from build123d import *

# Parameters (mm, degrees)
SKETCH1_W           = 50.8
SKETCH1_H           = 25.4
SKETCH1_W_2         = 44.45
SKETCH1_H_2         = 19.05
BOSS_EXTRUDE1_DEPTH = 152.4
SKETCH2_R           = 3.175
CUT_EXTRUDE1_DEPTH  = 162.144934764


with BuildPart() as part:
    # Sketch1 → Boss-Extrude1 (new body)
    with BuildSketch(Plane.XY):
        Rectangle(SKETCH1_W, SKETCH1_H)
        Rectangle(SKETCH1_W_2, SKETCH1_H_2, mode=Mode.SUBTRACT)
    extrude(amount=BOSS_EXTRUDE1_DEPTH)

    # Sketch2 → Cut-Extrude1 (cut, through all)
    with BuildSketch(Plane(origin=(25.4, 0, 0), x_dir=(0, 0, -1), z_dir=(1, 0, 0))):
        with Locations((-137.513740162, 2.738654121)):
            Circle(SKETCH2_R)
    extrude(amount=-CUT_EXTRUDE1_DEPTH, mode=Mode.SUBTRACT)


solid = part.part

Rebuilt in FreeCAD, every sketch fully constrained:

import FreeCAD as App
import Part
import Sketcher
from FreeCAD import Vector
Q = App.Units.Quantity

doc = App.newDocument("Part")
params = doc.addObject("Spreadsheet::Sheet", "Params")
for row, (alias, value) in enumerate([
    ("sketch1_width", "2 in"),
    ("sketch1_height", "1 in"),
    ("sketch1_width2", "1.75 in"),
    ("sketch1_height2", "0.75 in"),
    ("pad1_length", "6 in"),
    ("sketch2_diameter", "0.25 in"),
], start=1):
    params.set(f"A{row}", alias)
    params.set(f"B{row}", "=" + value)
    params.setAlias(f"B{row}", alias)

body = doc.addObject("PartDesign::Body", "Body")

# Sketch on XY plane
sketch1 = doc.addObject("Sketcher::SketchObject", "Sketch")
body.addObject(sketch1)
sketch1.AttachmentSupport = (doc.XY_Plane, [""])
sketch1.MapMode = "FlatFace"
sketch1.addGeometry([
    Part.LineSegment(Vector(-25.4, 12.7, 0), Vector(-25.4, -12.7, 0)),  # 0
    Part.LineSegment(Vector(-25.4, -12.7, 0), Vector(25.4, -12.7, 0)),  # 1
    Part.LineSegment(Vector(25.4, -12.7, 0), Vector(25.4, 12.7, 0)),  # 2
    Part.LineSegment(Vector(25.4, 12.7, 0), Vector(-25.4, 12.7, 0)),  # 3
    Part.LineSegment(Vector(22.225, -9.525, 0), Vector(-22.225, -9.525, 0)),  # 4
    Part.LineSegment(Vector(-22.225, -9.525, 0), Vector(-22.225, 9.525, 0)),  # 5
    Part.LineSegment(Vector(-22.225, 9.525, 0), Vector(22.225, 9.525, 0)),  # 6
    Part.LineSegment(Vector(22.225, 9.525, 0), Vector(22.225, -9.525, 0)),  # 7
], False)
sketch1.addConstraint([
    Sketcher.Constraint("Coincident", 0, 2, 1, 1),
    Sketcher.Constraint("Coincident", 1, 2, 2, 1),
    Sketcher.Constraint("Coincident", 2, 2, 3, 1),
    Sketcher.Constraint("Coincident", 3, 2, 0, 1),
    Sketcher.Constraint("Coincident", 4, 2, 5, 1),
    Sketcher.Constraint("Coincident", 5, 2, 6, 1),
    Sketcher.Constraint("Coincident", 6, 2, 7, 1),
    Sketcher.Constraint("Coincident", 7, 2, 4, 1),
    Sketcher.Constraint("Vertical", 0),
    Sketcher.Constraint("Horizontal", 1),
    Sketcher.Constraint("Vertical", 2),
    Sketcher.Constraint("Horizontal", 3),
    Sketcher.Constraint("Horizontal", 4),
    Sketcher.Constraint("Vertical", 5),
    Sketcher.Constraint("Horizontal", 6),
    Sketcher.Constraint("Vertical", 7),
    Sketcher.Constraint("Symmetric", 0, 2, 2, 2, -1, 1),
    Sketcher.Constraint("Symmetric", 4, 2, 6, 2, -1, 1),
    Sketcher.Constraint("DistanceX", 1, 1, 1, 2, Q("2 in")),
    Sketcher.Constraint("DistanceY", 0, 2, 0, 1, Q("1 in")),
    Sketcher.Constraint("DistanceX", 4, 2, 4, 1, Q("1.75 in")),
    Sketcher.Constraint("DistanceY", 5, 1, 5, 2, Q("0.75 in")),
])
sketch1.setExpression("Constraints[18]", "Params.sketch1_width")
sketch1.setExpression("Constraints[19]", "Params.sketch1_height")
sketch1.setExpression("Constraints[20]", "Params.sketch1_width2")
sketch1.setExpression("Constraints[21]", "Params.sketch1_height2")
pad1 = doc.addObject("PartDesign::Pad", "Pad")
body.addObject(pad1)
pad1.Profile = sketch1
pad1.setExpression("Length", "Params.pad1_length")

# Sketch on YZ plane
sketch2 = doc.addObject("Sketcher::SketchObject", "Sketch001")
body.addObject(sketch2)
sketch2.AttachmentSupport = (doc.YZ_Plane, [""])
sketch2.MapMode = "FlatFace"
sketch2.AttachmentOffset = App.Placement(Vector(0, 0, 1 * 25.4), App.Rotation())
sketch2.addGeometry(Part.Circle(Vector(2.738654, 137.51374, 0), Vector(0, 0, 1), 3.175), False)
sketch2.addConstraint([
    Sketcher.Constraint("Diameter", 0, Q("0.25 in")),
    Sketcher.Constraint("DistanceY", -1, 1, 0, 3, Q("137.51374 mm")),
    Sketcher.Constraint("DistanceX", -1, 1, 0, 3, Q("2.738654 mm")),
])
sketch2.setExpression("Constraints[0]", "Params.sketch2_diameter")
pocket1 = doc.addObject("PartDesign::Pocket", "Pocket")
body.addObject(pocket1)
pocket1.Profile = sketch2
pocket1.Type = "ThroughAll"

doc.recompute()
